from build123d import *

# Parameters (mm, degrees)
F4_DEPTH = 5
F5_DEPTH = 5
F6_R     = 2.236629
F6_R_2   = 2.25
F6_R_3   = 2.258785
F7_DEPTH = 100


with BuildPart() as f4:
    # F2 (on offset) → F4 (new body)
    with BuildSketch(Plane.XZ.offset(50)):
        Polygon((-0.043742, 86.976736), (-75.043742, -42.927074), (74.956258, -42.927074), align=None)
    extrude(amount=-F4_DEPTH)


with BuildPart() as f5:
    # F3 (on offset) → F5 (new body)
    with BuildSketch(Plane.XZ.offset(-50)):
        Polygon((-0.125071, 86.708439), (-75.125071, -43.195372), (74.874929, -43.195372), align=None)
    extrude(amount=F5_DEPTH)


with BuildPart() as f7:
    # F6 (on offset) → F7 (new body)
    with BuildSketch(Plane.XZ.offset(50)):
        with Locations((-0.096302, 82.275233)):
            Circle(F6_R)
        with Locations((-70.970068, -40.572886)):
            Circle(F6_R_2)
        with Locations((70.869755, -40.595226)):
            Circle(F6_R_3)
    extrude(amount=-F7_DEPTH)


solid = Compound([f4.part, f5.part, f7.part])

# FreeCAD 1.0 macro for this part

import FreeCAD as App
import Part
import Sketcher
Q = App.Units.Quantity


def add_polygon(sketch, points):
    """Adds a closed chain of lines whose ends are joined by coincident constraints."""
    first, n = sketch.GeometryCount, len(points)
    for a, b in zip(points, points[1:] + points[:1]):
        sketch.addGeometry(Part.LineSegment(App.Vector(*a, 0), App.Vector(*b, 0)), False)
    for i in range(n):
        sketch.addConstraint(Sketcher.Constraint("Coincident", first + i, 2, first + (i + 1) % n, 1))

doc = App.newDocument("Part")
body = doc.addObject("PartDesign::Body", "Body")

sketch1 = body.newObject("Sketcher::SketchObject", "Sketch")
sketch1.AttachmentSupport = (doc.getObject("XZ_Plane"), [""])
sketch1.MapMode = "FlatFace"
sketch1.AttachmentOffset = App.Placement(App.Vector(0, 0, 50), App.Rotation())
add_polygon(sketch1, [(0, 87), (-75, -43), (75, -43)])
sketch1.addConstraint(Sketcher.Constraint("Horizontal", 1))
sketch1.addConstraint(Sketcher.Constraint("Equal", 0, 2))
sketch1.addConstraint(Sketcher.Constraint("DistanceX", 1, 1, 1, 2, Q("150 mm")))
sketch1.addConstraint(Sketcher.Constraint("Angle", 0, Q("-120 deg")))
sketch1.addConstraint(Sketcher.Constraint("DistanceX", 0, 2, -1, 1, Q("75.043742 mm")))
sketch1.addConstraint(Sketcher.Constraint("DistanceY", 0, 2, -1, 1, Q("42.927074 mm")))
pad1 = body.newObject("PartDesign::Pad", "Pad")
pad1.Profile = sketch1
pad1.Length = 5
pad1.Reversed = True
body2 = doc.addObject("PartDesign::Body", "Body001")

sketch2 = body2.newObject("Sketcher::SketchObject", "Sketch001")
sketch2.AttachmentSupport = (doc.getObject("XZ_Plane001"), [""])
sketch2.MapMode = "FlatFace"
sketch2.AttachmentOffset = App.Placement(App.Vector(0, 0, -50), App.Rotation())
add_polygon(sketch2, [(0, 87), (-75, -43), (75, -43)])
sketch2.addConstraint(Sketcher.Constraint("Horizontal", 1))
sketch2.addConstraint(Sketcher.Constraint("Equal", 0, 2))
sketch2.addConstraint(Sketcher.Constraint("DistanceX", 1, 1, 1, 2, Q("150 mm")))
sketch2.addConstraint(Sketcher.Constraint("Angle", 0, Q("-120 deg")))
sketch2.addConstraint(Sketcher.Constraint("DistanceX", 0, 2, -1, 1, Q("75.125071 mm")))
sketch2.addConstraint(Sketcher.Constraint("DistanceY", -1, 1, 2, 2, Q("86.708439 mm")))
pad2 = body2.newObject("PartDesign::Pad", "Pad001")
pad2.Profile = sketch2
pad2.Length = 5
body3 = doc.addObject("PartDesign::Body", "Body002")
body3.AllowCompound = True

sketch3 = body3.newObject("Sketcher::SketchObject", "Sketch002")
sketch3.AttachmentSupport = (doc.getObject("XZ_Plane002"), [""])
sketch3.MapMode = "FlatFace"
sketch3.AttachmentOffset = App.Placement(App.Vector(0, 0, 50), App.Rotation())
sketch3.addGeometry(Part.Circle(App.Vector(-0.1, 82.3, 0), App.Vector(0, 0, 1), 2.2), False)
sketch3.addGeometry(Part.Circle(App.Vector(-71, -40.6, 0), App.Vector(0, 0, 1), 2.2), False)
sketch3.addGeometry(Part.Circle(App.Vector(70.9, -40.6, 0), App.Vector(0, 0, 1), 2.3), False)
sketch3.addConstraint(Sketcher.Constraint("Diameter", 1, Q("4.5 mm")))
sketch3.addConstraint(Sketcher.Constraint("Diameter", 0, Q("4.473258 mm")))
sketch3.addConstraint(Sketcher.Constraint("Diameter", 2, Q("4.51757 mm")))
sketch3.addConstraint(Sketcher.Constraint("DistanceY", 1, 3, 0, 3, Q("122.848119 mm")))
sketch3.addConstraint(Sketcher.Constraint("DistanceY", 2, 3, 1, 3, Q("0.02234 mm")))
sketch3.addConstraint(Sketcher.Constraint("DistanceX", 0, 3, -1, 1, Q("0.096302 mm")))
sketch3.addConstraint(Sketcher.Constraint("DistanceY", -1, 1, 0, 3, Q("82.275233 mm")))
sketch3.addConstraint(Sketcher.Constraint("DistanceX", 1, 3, -1, 1, Q("70.970068 mm")))
sketch3.addConstraint(Sketcher.Constraint("DistanceX", -1, 1, 2, 3, Q("70.869755 mm")))
pad3 = body3.newObject("PartDesign::Pad", "Pad002")
pad3.Profile = sketch3
pad3.Length = 100
pad3.Reversed = True

doc.recompute()
